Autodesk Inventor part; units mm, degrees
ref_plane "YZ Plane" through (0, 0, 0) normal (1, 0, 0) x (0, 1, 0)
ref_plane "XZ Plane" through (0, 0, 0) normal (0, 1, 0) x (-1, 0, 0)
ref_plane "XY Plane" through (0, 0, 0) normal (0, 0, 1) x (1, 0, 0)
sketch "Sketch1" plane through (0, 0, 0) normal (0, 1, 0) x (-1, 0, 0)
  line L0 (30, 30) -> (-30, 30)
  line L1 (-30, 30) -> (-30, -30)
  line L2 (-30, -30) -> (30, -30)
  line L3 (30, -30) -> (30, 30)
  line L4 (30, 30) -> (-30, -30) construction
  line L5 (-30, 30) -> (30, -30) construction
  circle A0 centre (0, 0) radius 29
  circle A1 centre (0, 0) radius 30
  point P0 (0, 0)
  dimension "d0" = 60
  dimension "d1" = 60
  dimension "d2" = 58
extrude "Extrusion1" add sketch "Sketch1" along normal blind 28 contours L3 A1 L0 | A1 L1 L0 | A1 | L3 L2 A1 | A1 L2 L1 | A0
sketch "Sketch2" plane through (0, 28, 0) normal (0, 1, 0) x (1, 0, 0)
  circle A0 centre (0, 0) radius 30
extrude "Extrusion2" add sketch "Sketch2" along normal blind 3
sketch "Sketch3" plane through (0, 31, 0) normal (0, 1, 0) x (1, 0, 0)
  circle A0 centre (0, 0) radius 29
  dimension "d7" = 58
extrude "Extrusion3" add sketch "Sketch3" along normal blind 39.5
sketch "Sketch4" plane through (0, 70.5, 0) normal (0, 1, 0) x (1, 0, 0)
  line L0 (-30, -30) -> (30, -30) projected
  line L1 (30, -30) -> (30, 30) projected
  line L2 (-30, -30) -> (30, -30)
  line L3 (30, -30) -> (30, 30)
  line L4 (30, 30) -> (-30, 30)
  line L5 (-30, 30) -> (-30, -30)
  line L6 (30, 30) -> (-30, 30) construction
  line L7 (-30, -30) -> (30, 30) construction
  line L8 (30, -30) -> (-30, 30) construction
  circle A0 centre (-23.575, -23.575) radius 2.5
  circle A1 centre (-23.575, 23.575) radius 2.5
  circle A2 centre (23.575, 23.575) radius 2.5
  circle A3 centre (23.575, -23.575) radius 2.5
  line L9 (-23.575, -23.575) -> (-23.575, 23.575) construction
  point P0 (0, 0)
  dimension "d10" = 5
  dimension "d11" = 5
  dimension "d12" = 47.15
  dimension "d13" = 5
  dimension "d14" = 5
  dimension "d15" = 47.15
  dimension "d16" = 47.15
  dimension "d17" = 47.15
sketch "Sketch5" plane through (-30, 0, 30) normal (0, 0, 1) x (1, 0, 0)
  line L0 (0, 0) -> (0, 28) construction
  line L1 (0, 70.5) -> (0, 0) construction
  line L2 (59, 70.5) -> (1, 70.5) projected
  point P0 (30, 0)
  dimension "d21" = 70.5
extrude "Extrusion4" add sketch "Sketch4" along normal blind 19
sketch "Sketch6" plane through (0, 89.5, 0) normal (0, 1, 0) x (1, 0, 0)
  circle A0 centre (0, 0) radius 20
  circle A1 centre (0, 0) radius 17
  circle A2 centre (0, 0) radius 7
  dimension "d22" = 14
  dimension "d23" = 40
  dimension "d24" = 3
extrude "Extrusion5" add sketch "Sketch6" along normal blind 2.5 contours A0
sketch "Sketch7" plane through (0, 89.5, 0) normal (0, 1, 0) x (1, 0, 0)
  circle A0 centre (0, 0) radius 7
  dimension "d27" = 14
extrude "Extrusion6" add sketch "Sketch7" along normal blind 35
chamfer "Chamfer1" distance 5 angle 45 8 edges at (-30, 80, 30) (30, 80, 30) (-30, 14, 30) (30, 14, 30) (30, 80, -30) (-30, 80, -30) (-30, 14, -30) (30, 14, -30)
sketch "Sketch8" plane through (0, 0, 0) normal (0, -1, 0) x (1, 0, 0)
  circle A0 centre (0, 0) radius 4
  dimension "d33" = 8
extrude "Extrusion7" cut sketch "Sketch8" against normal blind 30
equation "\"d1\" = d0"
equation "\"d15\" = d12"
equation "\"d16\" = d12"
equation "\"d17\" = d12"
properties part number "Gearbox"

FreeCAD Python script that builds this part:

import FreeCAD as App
import Part
import Sketcher
from FreeCAD import Vector
Q = App.Units.Quantity


def edges_at(feature, points):
    """Names of the edges that pass closest to the given points."""
    edges = feature.Shape.Edges
    near = lambda p: min(range(len(edges)), key=lambda i: edges[i].distToShape(Part.Vertex(*p))[0])
    return sorted({f"Edge{near(p) + 1}" for p in points})


def add_polygon(sketch, points):
    """Adds a closed chain of lines whose ends are joined by coincident constraints."""
    first, n = sketch.GeometryCount, len(points)
    for a, b in zip(points, points[1:] + points[:1]):
        sketch.addGeometry(Part.LineSegment(App.Vector(*a, 0), App.Vector(*b, 0)), False)
    for i in range(n):
        sketch.addConstraint(Sketcher.Constraint("Coincident", first + i, 2, first + (i + 1) % n, 1))

doc = App.newDocument("Part")
params = doc.addObject("Spreadsheet::Sheet", "Params")
for row, (alias, value) in enumerate([
    ("sketch1_width", "60 mm"),
    ("pad1_length", "28 mm"),
    ("sketch2_diameter", "60 mm"),
    ("pad2_length", "3 mm"),
    ("sketch3_diameter", "58 mm"),
    ("pad3_length", "39.5 mm"),
    ("sketch4_diameter", "5 mm"),
    ("sketch4_width", "60 mm"),
    ("pad4_length", "19 mm"),
    ("sketch5_diameter", "40 mm"),
    ("sketch5_diameter2", "34 mm"),
    ("pad5_length", "2.5 mm"),
    ("sketch6_diameter", "14 mm"),
    ("pad6_length", "35 mm"),
    ("chamfer_size", "5 mm"),
    ("sketch7_diameter", "8 mm"),
    ("pocket1_length", "30 mm"),
], start=1):
    params.set(f"A{row}", alias)
    params.set(f"B{row}", "=" + value)
    params.setAlias(f"B{row}", alias)

body = doc.addObject("PartDesign::Body", "Body")

# Sketch on XZ plane
sketch1 = doc.addObject("Sketcher::SketchObject", "Sketch")
body.addObject(sketch1)
sketch1.AttachmentSupport = (doc.XZ_Plane, [""])
sketch1.MapMode = "FlatFace"
add_polygon(sketch1, [(-30, 30), (30, 30), (30, -30), (-30, -30)])  # lines 0-3
sketch1.addConstraint([
    Sketcher.Constraint("Horizontal", 0),
    Sketcher.Constraint("Vertical", 1),
    Sketcher.Constraint("Horizontal", 2),
    Sketcher.Constraint("Vertical", 3),
    Sketcher.Constraint("Symmetric", 0, 2, 2, 2, -1, 1),
    Sketcher.Constraint("Equal", 2, 1),
    Sketcher.Constraint("DistanceX", 0, 1, 0, 2, Q("60 mm")),
])
sketch1.setExpression("Constraints[10]", "Params.sketch1_width")
pad1 = doc.addObject("PartDesign::Pad", "Pad")
body.addObject(pad1)
pad1.Profile = sketch1
pad1.setExpression("Length", "Params.pad1_length")
pad1.Reversed = True

# Sketch on XZ plane
sketch2 = doc.addObject("Sketcher::SketchObject", "Sketch001")
body.addObject(sketch2)
sketch2.AttachmentSupport = (doc.XZ_Plane, [""])
sketch2.MapMode = "FlatFace"
sketch2.AttachmentOffset = App.Placement(Vector(0, 0, -28), App.Rotation())
sketch2.addGeometry(Part.Circle(Vector(0, 0, 0), Vector(0, 0, 1), 30), False)
sketch2.addConstraint([
    Sketcher.Constraint("Coincident", 0, 3, -1, 1),
    Sketcher.Constraint("Diameter", 0, Q("60 mm")),
])
sketch2.setExpression("Constraints[1]", "Params.sketch2_diameter")
pad2 = doc.addObject("PartDesign::Pad", "Pad001")
body.addObject(pad2)
pad2.Profile = sketch2
pad2.setExpression("Length", "Params.pad2_length")
pad2.Reversed = True

# Sketch on XZ plane
sketch3 = doc.addObject("Sketcher::SketchObject", "Sketch002")
body.addObject(sketch3)
sketch3.AttachmentSupport = (doc.XZ_Plane, [""])
sketch3.MapMode = "FlatFace"
sketch3.AttachmentOffset = App.Placement(Vector(0, 0, -31), App.Rotation())
sketch3.addGeometry(Part.Circle(Vector(0, 0, 0), Vector(0, 0, 1), 29), False)
sketch3.addConstraint([
    Sketcher.Constraint("Coincident", 0, 3, -1, 1),
    Sketcher.Constraint("Diameter", 0, Q("58 mm")),
])
sketch3.setExpression("Constraints[1]", "Params.sketch3_diameter")
pad3 = doc.addObject("PartDesign::Pad", "Pad002")
body.addObject(pad3)
pad3.Profile = sketch3
pad3.setExpression("Length", "Params.pad3_length")
pad3.Reversed = True

# Sketch on XZ plane
sketch4 = doc.addObject("Sketcher::SketchObject", "Sketch003")
body.addObject(sketch4)
sketch4.AttachmentSupport = (doc.XZ_Plane, [""])
sketch4.MapMode = "FlatFace"
sketch4.AttachmentOffset = App.Placement(Vector(0, 0, -70.5), App.Rotation())
add_polygon(sketch4, [(-30, -30), (-30, 30), (30, 30), (30, -30)])  # lines 0-3
sketch4.addGeometry(Part.Circle(Vector(-23.575, 23.575, 0), Vector(0, 0, 1), 2.5), False)  # 4
sketch4.addGeometry(Part.Circle(Vector(23.575, 23.575, 0), Vector(0, 0, 1), 2.5), False)  # 5
sketch4.addGeometry(Part.Circle(Vector(-23.575, -23.575, 0), Vector(0, 0, 1), 2.5), False)  # 6
sketch4.addGeometry(Part.Circle(Vector(23.575, -23.575, 0), Vector(0, 0, 1), 2.5), False)  # 7
sketch4.addConstraint([
    Sketcher.Constraint("Vertical", 0),
    Sketcher.Constraint("Horizontal", 1),
    Sketcher.Constraint("Vertical", 2),
    Sketcher.Constraint("Horizontal", 3),
    Sketcher.Constraint("Equal", 4, 5),
    Sketcher.Constraint("Equal", 5, 6),
    Sketcher.Constraint("Equal", 6, 7),
    Sketcher.Constraint("Symmetric", 5, 3, 6, 3, -1, 1),
    Sketcher.Constraint("Symmetric", 4, 3, 7, 3, -1, 1),
    Sketcher.Constraint("Symmetric", 0, 2, 2, 2, -1, 1),
    Sketcher.Constraint("Symmetric", 4, 3, 5, 3, -2),
    Sketcher.Constraint("Equal", 3, 0),
    Sketcher.Constraint("Diameter", 4, Q("5 mm")),
    Sketcher.Constraint("DistanceX", 1, 1, 1, 2, Q("60 mm")),
    Sketcher.Constraint("DistanceX", 4, 3, 5, 3, Q("47.15 mm")),
    Sketcher.Constraint("DistanceY", 6, 3, 4, 3, Q("47.15 mm")),
])
sketch4.setExpression("Constraints[16]", "Params.sketch4_diameter")
sketch4.setExpression("Constraints[17]", "Params.sketch4_width")
pad4 = doc.addObject("PartDesign::Pad", "Pad003")
body.addObject(pad4)
pad4.Profile = sketch4
pad4.setExpression("Length", "Params.pad4_length")
pad4.Reversed = True

# Sketch on XZ plane
sketch5 = doc.addObject("Sketcher::SketchObject", "Sketch004")
body.addObject(sketch5)
sketch5.AttachmentSupport = (doc.XZ_Plane, [""])
sketch5.MapMode = "FlatFace"
sketch5.AttachmentOffset = App.Placement(Vector(0, 0, -89.5), App.Rotation())
sketch5.addGeometry([
    Part.Circle(Vector(0, 0, 0), Vector(0, 0, 1), 20),
    Part.Circle(Vector(0, 0, 0), Vector(0, 0, 1), 17),
], False)
sketch5.addConstraint([
    Sketcher.Constraint("Coincident", 0, 3, -1, 1),
    Sketcher.Constraint("Coincident", 1, 3, -1, 1),
    Sketcher.Constraint("Diameter", 0, Q("40 mm")),
    Sketcher.Constraint("Diameter", 1, Q("34 mm")),
])
sketch5.setExpression("Constraints[2]", "Params.sketch5_diameter")
sketch5.setExpression("Constraints[3]", "Params.sketch5_diameter2")
pad5 = doc.addObject("PartDesign::Pad", "Pad004")
body.addObject(pad5)
pad5.Profile = sketch5
pad5.setExpression("Length", "Params.pad5_length")
pad5.Reversed = True

# Sketch on XZ plane
sketch6 = doc.addObject("Sketcher::SketchObject", "Sketch005")
body.addObject(sketch6)
sketch6.AttachmentSupport = (doc.XZ_Plane, [""])
sketch6.MapMode = "FlatFace"
sketch6.AttachmentOffset = App.Placement(Vector(0, 0, -89.5), App.Rotation())
sketch6.addGeometry(Part.Circle(Vector(0, 0, 0), Vector(0, 0, 1), 7), False)
sketch6.addConstraint([
    Sketcher.Constraint("Coincident", 0, 3, -1, 1),
    Sketcher.Constraint("Diameter", 0, Q("14 mm")),
])
sketch6.setExpression("Constraints[1]", "Params.sketch6_diameter")
pad6 = doc.addObject("PartDesign::Pad", "Pad005")
body.addObject(pad6)
pad6.Profile = sketch6
pad6.setExpression("Length", "Params.pad6_length")
pad6.Reversed = True
doc.recompute()

chamfer = doc.addObject("PartDesign::Chamfer", "Chamfer")
body.addObject(chamfer)
chamfer.Base = (pad6, edges_at(pad6, [
    (-30, 80, 30),
    (30, 80, 30),
    (-30, 14, 30),
    (30, 14, 30),
    (30, 80, -30),
    (-30, 80, -30),
    (-30, 14, -30),
    (30, 14, -30),
]))
chamfer.setExpression("Size", "Params.chamfer_size")

# Sketch on XZ plane
sketch7 = doc.addObject("Sketcher::SketchObject", "Sketch006")
body.addObject(sketch7)
sketch7.AttachmentSupport = (doc.XZ_Plane, [""])
sketch7.MapMode = "FlatFace"
sketch7.addGeometry(Part.Circle(Vector(0, 0, 0), Vector(0, 0, 1), 4), False)
sketch7.addConstraint([
    Sketcher.Constraint("Coincident", 0, 3, -1, 1),
    Sketcher.Constraint("Diameter", 0, Q("8 mm")),
])
sketch7.setExpression("Constraints[1]", "Params.sketch7_diameter")
pocket1 = doc.addObject("PartDesign::Pocket", "Pocket")
body.addObject(pocket1)
pocket1.Profile = sketch7
pocket1.setExpression("Length", "Params.pocket1_length")

doc.recompute()
